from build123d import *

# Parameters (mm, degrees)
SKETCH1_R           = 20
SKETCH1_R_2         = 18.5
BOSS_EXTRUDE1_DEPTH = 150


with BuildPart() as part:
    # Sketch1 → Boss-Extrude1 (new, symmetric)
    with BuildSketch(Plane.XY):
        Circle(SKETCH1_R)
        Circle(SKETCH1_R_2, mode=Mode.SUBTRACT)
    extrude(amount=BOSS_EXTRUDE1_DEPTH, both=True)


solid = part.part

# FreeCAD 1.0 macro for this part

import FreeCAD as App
import Part
import Sketcher
Q = App.Units.Quantity

doc = App.newDocument("Part")
body = doc.addObject("PartDesign::Body", "Body")

sketch1 = body.newObject("Sketcher::SketchObject", "Sketch")
sketch1.AttachmentSupport = (doc.getObject("XY_Plane"), [""])
sketch1.MapMode = "FlatFace"
sketch1.addGeometry([
    Part.Circle(App.Vector(0, 0, 0), App.Vector(0, 0, 1), 20),
    Part.Circle(App.Vector(0, 0, 0), App.Vector(0, 0, 1), 18),
], False)
sketch1.addConstraint([
    Sketcher.Constraint("Coincident", 0, 3, -1, 1),
    Sketcher.Constraint("Coincident", 1, 3, -1, 1),
    Sketcher.Constraint("Diameter", 0, Q("40 mm")),
    Sketcher.Constraint("Diameter", 1, Q("37 mm")),
])
pad1 = body.newObject("PartDesign::Pad", "Pad")
pad1.Profile = sketch1
pad1.Length = 300
pad1.Midplane = True

doc.recompute()
